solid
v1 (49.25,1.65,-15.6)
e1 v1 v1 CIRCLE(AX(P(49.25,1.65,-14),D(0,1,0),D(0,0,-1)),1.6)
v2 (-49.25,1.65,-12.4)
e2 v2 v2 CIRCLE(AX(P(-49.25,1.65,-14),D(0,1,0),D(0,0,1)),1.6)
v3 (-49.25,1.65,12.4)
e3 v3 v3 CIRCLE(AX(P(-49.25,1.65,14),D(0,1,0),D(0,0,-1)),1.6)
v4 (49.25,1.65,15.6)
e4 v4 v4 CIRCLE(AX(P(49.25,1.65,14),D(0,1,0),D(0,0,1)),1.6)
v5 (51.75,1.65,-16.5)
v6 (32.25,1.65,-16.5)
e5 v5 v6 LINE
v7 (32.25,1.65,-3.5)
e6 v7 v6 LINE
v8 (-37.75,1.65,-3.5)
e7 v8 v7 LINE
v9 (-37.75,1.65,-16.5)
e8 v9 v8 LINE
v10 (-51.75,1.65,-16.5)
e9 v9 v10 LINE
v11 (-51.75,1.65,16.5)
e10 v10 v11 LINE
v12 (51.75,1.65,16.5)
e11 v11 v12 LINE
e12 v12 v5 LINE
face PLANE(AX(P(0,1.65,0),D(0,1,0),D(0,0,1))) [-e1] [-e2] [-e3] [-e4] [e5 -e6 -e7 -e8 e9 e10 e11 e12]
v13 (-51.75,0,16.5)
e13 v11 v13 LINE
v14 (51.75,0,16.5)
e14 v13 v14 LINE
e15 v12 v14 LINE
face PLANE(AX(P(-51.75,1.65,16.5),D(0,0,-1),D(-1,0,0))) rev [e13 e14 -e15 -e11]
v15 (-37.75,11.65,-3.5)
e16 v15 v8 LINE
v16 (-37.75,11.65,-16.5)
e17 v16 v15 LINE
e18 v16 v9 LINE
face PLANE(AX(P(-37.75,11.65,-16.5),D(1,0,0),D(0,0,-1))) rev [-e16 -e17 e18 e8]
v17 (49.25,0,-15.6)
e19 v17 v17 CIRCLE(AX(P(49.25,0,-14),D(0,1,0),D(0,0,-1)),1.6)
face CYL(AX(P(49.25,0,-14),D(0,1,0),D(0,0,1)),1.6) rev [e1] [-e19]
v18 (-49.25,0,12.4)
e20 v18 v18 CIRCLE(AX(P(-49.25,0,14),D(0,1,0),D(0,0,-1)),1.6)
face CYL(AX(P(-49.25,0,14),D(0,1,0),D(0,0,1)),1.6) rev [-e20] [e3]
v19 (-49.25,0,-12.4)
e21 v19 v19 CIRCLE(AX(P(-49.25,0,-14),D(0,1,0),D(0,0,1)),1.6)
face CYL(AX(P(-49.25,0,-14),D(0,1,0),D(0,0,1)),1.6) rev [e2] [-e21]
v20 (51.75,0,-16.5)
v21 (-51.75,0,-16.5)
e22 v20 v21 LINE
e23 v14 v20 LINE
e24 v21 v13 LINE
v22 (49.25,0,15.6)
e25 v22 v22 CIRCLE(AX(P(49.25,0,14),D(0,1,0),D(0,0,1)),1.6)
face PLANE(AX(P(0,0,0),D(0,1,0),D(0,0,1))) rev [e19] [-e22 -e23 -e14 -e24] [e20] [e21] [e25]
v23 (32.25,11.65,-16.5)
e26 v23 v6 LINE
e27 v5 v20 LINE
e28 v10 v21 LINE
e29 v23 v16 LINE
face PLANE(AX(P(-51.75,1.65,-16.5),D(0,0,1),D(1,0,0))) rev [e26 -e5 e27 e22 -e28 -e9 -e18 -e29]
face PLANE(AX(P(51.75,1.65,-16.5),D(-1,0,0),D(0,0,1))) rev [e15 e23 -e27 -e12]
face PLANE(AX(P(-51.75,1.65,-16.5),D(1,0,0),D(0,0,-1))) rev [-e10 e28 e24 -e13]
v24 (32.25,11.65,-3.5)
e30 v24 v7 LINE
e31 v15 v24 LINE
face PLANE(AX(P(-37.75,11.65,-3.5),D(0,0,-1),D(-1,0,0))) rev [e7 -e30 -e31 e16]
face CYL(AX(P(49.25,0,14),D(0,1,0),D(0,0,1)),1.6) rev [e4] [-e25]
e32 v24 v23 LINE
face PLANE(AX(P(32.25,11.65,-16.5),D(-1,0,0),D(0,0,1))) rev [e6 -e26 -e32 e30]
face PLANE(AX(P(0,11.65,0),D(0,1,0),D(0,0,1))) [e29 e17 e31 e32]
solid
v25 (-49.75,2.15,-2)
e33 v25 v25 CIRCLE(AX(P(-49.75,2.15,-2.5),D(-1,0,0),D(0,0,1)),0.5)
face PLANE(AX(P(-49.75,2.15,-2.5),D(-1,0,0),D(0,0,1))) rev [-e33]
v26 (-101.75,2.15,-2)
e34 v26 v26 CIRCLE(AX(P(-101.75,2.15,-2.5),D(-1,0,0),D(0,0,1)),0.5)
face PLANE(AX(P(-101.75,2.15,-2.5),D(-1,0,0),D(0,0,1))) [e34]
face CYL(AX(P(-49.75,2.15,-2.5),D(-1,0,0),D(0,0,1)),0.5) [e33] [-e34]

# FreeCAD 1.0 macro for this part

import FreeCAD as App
import Part
import Sketcher
Q = App.Units.Quantity


def add_polygon(sketch, points):
    """Adds a closed chain of lines whose ends are joined by coincident constraints."""
    first, n = sketch.GeometryCount, len(points)
    for a, b in zip(points, points[1:] + points[:1]):
        sketch.addGeometry(Part.LineSegment(App.Vector(*a, 0), App.Vector(*b, 0)), False)
    for i in range(n):
        sketch.addConstraint(Sketcher.Constraint("Coincident", first + i, 2, first + (i + 1) % n, 1))

doc = App.newDocument("Part")
body = doc.addObject("PartDesign::Body", "Body")

# Sketch on XZ plane
sketch1 = doc.addObject("Sketcher::SketchObject", "Sketch")
body.addObject(sketch1)
sketch1.AttachmentSupport = (doc.XZ_Plane, [""])
sketch1.MapMode = "FlatFace"
add_polygon(sketch1, [(-51.75, -16.5), (-51.75, 16.5), (51.75, 16.5), (51.75, -16.5)])  # lines 0-3
sketch1.addConstraint([
    Sketcher.Constraint("Vertical", 0),
    Sketcher.Constraint("Horizontal", 1),
    Sketcher.Constraint("Vertical", 2),
    Sketcher.Constraint("Horizontal", 3),
    Sketcher.Constraint("Symmetric", 0, 2, 2, 2, -1, 1),
    Sketcher.Constraint("DistanceY", 0, 1, 0, 2, Q("33 mm")),
    Sketcher.Constraint("DistanceX", 1, 1, 1, 2, Q("103.5 mm")),
])
pad1 = doc.addObject("PartDesign::Pad", "Pad")
body.addObject(pad1)
pad1.Profile = sketch1
pad1.Length = 1.65
pad1.Reversed = True

# Sketch on XZ plane
sketch2 = doc.addObject("Sketcher::SketchObject", "Sketch001")
body.addObject(sketch2)
sketch2.AttachmentSupport = (doc.XZ_Plane, [""])
sketch2.MapMode = "FlatFace"
sketch2.AttachmentOffset = App.Placement(App.Vector(0, 0, -1.65), App.Rotation())
add_polygon(sketch2, [(-37.75, -16.5), (-37.75, -3.5), (32.25, -3.5), (32.25, -16.5)])  # lines 0-3
sketch2.addConstraint([
    Sketcher.Constraint("Vertical", 0),
    Sketcher.Constraint("Horizontal", 1),
    Sketcher.Constraint("Vertical", 2),
    Sketcher.Constraint("Horizontal", 3),
    Sketcher.Constraint("DistanceX", 1, 1, 1, 2, Q("70 mm")),
    Sketcher.Constraint("DistanceY", 0, 1, 0, 2, Q("13 mm")),
    Sketcher.Constraint("DistanceY", 0, 2, -1, 1, Q("3.5 mm")),
    Sketcher.Constraint("DistanceX", 0, 2, -1, 1, Q("37.75 mm")),
])
pad2 = doc.addObject("PartDesign::Pad", "Pad001")
body.addObject(pad2)
pad2.Profile = sketch2
pad2.Length = 10
pad2.Reversed = True

# Sketch on XZ plane
sketch3 = doc.addObject("Sketcher::SketchObject", "Sketch002")
body.addObject(sketch3)
sketch3.AttachmentSupport = (doc.XZ_Plane, [""])
sketch3.MapMode = "FlatFace"
sketch3.AttachmentOffset = App.Placement(App.Vector(0, 0, -1.65), App.Rotation())
sketch3.addGeometry([
    Part.Circle(App.Vector(-49.25, -14, 0), App.Vector(0, 0, 1), 1.6),
    Part.Circle(App.Vector(49.25, -14, 0), App.Vector(0, 0, 1), 1.6),
    Part.Circle(App.Vector(49.25, 14, 0), App.Vector(0, 0, 1), 1.6),
    Part.Circle(App.Vector(-49.25, 14, 0), App.Vector(0, 0, 1), 1.6),
], False)
sketch3.addConstraint([
    Sketcher.Constraint("Equal", 0, 1),
    Sketcher.Constraint("Equal", 1, 2),
    Sketcher.Constraint("Equal", 2, 3),
    Sketcher.Constraint("Symmetric", 0, 3, 2, 3, -1, 1),
    Sketcher.Constraint("Symmetric", 1, 3, 3, 3, -1, 1),
    Sketcher.Constraint("Symmetric", 0, 3, 1, 3, -2),
    Sketcher.Constraint("Diameter", 0, Q("3.2 mm")),
    Sketcher.Constraint("DistanceY", 0, 3, -1, 1, Q("14 mm")),
    Sketcher.Constraint("DistanceX", 0, 3, 1, 3, Q("98.5 mm")),
])
pocket1 = doc.addObject("PartDesign::Pocket", "Pocket")
body.addObject(pocket1)
pocket1.Profile = sketch3
pocket1.Type = "ThroughAll"
pocket1.Reversed = True
body2 = doc.addObject("PartDesign::Body", "Body001")

# Sketch on YZ plane
sketch4 = doc.addObject("Sketcher::SketchObject", "Sketch003")
body2.addObject(sketch4)
sketch4.AttachmentSupport = (doc.getObject("YZ_Plane001"), [""])
sketch4.MapMode = "FlatFace"
sketch4.AttachmentOffset = App.Placement(App.Vector(0, 0, -51.75), App.Rotation())
sketch4.addGeometry(Part.Circle(App.Vector(2.15, -2.5, 0), App.Vector(0, 0, 1), 0.5), False)
sketch4.addConstraint([
    Sketcher.Constraint("Diameter", 0, Q("1 mm")),
    Sketcher.Constraint("DistanceY", 0, 3, -1, 1, Q("2.5 mm")),
    Sketcher.Constraint("DistanceX", -1, 1, 0, 3, Q("2.15 mm")),
])
pad3 = doc.addObject("PartDesign::Pad", "Pad002")
body2.addObject(pad3)
pad3.Profile = sketch4
pad3.Type = "TwoLengths"
pad3.Length = 50
pad3.Length2 = 2
pad3.Reversed = True

doc.recompute()
